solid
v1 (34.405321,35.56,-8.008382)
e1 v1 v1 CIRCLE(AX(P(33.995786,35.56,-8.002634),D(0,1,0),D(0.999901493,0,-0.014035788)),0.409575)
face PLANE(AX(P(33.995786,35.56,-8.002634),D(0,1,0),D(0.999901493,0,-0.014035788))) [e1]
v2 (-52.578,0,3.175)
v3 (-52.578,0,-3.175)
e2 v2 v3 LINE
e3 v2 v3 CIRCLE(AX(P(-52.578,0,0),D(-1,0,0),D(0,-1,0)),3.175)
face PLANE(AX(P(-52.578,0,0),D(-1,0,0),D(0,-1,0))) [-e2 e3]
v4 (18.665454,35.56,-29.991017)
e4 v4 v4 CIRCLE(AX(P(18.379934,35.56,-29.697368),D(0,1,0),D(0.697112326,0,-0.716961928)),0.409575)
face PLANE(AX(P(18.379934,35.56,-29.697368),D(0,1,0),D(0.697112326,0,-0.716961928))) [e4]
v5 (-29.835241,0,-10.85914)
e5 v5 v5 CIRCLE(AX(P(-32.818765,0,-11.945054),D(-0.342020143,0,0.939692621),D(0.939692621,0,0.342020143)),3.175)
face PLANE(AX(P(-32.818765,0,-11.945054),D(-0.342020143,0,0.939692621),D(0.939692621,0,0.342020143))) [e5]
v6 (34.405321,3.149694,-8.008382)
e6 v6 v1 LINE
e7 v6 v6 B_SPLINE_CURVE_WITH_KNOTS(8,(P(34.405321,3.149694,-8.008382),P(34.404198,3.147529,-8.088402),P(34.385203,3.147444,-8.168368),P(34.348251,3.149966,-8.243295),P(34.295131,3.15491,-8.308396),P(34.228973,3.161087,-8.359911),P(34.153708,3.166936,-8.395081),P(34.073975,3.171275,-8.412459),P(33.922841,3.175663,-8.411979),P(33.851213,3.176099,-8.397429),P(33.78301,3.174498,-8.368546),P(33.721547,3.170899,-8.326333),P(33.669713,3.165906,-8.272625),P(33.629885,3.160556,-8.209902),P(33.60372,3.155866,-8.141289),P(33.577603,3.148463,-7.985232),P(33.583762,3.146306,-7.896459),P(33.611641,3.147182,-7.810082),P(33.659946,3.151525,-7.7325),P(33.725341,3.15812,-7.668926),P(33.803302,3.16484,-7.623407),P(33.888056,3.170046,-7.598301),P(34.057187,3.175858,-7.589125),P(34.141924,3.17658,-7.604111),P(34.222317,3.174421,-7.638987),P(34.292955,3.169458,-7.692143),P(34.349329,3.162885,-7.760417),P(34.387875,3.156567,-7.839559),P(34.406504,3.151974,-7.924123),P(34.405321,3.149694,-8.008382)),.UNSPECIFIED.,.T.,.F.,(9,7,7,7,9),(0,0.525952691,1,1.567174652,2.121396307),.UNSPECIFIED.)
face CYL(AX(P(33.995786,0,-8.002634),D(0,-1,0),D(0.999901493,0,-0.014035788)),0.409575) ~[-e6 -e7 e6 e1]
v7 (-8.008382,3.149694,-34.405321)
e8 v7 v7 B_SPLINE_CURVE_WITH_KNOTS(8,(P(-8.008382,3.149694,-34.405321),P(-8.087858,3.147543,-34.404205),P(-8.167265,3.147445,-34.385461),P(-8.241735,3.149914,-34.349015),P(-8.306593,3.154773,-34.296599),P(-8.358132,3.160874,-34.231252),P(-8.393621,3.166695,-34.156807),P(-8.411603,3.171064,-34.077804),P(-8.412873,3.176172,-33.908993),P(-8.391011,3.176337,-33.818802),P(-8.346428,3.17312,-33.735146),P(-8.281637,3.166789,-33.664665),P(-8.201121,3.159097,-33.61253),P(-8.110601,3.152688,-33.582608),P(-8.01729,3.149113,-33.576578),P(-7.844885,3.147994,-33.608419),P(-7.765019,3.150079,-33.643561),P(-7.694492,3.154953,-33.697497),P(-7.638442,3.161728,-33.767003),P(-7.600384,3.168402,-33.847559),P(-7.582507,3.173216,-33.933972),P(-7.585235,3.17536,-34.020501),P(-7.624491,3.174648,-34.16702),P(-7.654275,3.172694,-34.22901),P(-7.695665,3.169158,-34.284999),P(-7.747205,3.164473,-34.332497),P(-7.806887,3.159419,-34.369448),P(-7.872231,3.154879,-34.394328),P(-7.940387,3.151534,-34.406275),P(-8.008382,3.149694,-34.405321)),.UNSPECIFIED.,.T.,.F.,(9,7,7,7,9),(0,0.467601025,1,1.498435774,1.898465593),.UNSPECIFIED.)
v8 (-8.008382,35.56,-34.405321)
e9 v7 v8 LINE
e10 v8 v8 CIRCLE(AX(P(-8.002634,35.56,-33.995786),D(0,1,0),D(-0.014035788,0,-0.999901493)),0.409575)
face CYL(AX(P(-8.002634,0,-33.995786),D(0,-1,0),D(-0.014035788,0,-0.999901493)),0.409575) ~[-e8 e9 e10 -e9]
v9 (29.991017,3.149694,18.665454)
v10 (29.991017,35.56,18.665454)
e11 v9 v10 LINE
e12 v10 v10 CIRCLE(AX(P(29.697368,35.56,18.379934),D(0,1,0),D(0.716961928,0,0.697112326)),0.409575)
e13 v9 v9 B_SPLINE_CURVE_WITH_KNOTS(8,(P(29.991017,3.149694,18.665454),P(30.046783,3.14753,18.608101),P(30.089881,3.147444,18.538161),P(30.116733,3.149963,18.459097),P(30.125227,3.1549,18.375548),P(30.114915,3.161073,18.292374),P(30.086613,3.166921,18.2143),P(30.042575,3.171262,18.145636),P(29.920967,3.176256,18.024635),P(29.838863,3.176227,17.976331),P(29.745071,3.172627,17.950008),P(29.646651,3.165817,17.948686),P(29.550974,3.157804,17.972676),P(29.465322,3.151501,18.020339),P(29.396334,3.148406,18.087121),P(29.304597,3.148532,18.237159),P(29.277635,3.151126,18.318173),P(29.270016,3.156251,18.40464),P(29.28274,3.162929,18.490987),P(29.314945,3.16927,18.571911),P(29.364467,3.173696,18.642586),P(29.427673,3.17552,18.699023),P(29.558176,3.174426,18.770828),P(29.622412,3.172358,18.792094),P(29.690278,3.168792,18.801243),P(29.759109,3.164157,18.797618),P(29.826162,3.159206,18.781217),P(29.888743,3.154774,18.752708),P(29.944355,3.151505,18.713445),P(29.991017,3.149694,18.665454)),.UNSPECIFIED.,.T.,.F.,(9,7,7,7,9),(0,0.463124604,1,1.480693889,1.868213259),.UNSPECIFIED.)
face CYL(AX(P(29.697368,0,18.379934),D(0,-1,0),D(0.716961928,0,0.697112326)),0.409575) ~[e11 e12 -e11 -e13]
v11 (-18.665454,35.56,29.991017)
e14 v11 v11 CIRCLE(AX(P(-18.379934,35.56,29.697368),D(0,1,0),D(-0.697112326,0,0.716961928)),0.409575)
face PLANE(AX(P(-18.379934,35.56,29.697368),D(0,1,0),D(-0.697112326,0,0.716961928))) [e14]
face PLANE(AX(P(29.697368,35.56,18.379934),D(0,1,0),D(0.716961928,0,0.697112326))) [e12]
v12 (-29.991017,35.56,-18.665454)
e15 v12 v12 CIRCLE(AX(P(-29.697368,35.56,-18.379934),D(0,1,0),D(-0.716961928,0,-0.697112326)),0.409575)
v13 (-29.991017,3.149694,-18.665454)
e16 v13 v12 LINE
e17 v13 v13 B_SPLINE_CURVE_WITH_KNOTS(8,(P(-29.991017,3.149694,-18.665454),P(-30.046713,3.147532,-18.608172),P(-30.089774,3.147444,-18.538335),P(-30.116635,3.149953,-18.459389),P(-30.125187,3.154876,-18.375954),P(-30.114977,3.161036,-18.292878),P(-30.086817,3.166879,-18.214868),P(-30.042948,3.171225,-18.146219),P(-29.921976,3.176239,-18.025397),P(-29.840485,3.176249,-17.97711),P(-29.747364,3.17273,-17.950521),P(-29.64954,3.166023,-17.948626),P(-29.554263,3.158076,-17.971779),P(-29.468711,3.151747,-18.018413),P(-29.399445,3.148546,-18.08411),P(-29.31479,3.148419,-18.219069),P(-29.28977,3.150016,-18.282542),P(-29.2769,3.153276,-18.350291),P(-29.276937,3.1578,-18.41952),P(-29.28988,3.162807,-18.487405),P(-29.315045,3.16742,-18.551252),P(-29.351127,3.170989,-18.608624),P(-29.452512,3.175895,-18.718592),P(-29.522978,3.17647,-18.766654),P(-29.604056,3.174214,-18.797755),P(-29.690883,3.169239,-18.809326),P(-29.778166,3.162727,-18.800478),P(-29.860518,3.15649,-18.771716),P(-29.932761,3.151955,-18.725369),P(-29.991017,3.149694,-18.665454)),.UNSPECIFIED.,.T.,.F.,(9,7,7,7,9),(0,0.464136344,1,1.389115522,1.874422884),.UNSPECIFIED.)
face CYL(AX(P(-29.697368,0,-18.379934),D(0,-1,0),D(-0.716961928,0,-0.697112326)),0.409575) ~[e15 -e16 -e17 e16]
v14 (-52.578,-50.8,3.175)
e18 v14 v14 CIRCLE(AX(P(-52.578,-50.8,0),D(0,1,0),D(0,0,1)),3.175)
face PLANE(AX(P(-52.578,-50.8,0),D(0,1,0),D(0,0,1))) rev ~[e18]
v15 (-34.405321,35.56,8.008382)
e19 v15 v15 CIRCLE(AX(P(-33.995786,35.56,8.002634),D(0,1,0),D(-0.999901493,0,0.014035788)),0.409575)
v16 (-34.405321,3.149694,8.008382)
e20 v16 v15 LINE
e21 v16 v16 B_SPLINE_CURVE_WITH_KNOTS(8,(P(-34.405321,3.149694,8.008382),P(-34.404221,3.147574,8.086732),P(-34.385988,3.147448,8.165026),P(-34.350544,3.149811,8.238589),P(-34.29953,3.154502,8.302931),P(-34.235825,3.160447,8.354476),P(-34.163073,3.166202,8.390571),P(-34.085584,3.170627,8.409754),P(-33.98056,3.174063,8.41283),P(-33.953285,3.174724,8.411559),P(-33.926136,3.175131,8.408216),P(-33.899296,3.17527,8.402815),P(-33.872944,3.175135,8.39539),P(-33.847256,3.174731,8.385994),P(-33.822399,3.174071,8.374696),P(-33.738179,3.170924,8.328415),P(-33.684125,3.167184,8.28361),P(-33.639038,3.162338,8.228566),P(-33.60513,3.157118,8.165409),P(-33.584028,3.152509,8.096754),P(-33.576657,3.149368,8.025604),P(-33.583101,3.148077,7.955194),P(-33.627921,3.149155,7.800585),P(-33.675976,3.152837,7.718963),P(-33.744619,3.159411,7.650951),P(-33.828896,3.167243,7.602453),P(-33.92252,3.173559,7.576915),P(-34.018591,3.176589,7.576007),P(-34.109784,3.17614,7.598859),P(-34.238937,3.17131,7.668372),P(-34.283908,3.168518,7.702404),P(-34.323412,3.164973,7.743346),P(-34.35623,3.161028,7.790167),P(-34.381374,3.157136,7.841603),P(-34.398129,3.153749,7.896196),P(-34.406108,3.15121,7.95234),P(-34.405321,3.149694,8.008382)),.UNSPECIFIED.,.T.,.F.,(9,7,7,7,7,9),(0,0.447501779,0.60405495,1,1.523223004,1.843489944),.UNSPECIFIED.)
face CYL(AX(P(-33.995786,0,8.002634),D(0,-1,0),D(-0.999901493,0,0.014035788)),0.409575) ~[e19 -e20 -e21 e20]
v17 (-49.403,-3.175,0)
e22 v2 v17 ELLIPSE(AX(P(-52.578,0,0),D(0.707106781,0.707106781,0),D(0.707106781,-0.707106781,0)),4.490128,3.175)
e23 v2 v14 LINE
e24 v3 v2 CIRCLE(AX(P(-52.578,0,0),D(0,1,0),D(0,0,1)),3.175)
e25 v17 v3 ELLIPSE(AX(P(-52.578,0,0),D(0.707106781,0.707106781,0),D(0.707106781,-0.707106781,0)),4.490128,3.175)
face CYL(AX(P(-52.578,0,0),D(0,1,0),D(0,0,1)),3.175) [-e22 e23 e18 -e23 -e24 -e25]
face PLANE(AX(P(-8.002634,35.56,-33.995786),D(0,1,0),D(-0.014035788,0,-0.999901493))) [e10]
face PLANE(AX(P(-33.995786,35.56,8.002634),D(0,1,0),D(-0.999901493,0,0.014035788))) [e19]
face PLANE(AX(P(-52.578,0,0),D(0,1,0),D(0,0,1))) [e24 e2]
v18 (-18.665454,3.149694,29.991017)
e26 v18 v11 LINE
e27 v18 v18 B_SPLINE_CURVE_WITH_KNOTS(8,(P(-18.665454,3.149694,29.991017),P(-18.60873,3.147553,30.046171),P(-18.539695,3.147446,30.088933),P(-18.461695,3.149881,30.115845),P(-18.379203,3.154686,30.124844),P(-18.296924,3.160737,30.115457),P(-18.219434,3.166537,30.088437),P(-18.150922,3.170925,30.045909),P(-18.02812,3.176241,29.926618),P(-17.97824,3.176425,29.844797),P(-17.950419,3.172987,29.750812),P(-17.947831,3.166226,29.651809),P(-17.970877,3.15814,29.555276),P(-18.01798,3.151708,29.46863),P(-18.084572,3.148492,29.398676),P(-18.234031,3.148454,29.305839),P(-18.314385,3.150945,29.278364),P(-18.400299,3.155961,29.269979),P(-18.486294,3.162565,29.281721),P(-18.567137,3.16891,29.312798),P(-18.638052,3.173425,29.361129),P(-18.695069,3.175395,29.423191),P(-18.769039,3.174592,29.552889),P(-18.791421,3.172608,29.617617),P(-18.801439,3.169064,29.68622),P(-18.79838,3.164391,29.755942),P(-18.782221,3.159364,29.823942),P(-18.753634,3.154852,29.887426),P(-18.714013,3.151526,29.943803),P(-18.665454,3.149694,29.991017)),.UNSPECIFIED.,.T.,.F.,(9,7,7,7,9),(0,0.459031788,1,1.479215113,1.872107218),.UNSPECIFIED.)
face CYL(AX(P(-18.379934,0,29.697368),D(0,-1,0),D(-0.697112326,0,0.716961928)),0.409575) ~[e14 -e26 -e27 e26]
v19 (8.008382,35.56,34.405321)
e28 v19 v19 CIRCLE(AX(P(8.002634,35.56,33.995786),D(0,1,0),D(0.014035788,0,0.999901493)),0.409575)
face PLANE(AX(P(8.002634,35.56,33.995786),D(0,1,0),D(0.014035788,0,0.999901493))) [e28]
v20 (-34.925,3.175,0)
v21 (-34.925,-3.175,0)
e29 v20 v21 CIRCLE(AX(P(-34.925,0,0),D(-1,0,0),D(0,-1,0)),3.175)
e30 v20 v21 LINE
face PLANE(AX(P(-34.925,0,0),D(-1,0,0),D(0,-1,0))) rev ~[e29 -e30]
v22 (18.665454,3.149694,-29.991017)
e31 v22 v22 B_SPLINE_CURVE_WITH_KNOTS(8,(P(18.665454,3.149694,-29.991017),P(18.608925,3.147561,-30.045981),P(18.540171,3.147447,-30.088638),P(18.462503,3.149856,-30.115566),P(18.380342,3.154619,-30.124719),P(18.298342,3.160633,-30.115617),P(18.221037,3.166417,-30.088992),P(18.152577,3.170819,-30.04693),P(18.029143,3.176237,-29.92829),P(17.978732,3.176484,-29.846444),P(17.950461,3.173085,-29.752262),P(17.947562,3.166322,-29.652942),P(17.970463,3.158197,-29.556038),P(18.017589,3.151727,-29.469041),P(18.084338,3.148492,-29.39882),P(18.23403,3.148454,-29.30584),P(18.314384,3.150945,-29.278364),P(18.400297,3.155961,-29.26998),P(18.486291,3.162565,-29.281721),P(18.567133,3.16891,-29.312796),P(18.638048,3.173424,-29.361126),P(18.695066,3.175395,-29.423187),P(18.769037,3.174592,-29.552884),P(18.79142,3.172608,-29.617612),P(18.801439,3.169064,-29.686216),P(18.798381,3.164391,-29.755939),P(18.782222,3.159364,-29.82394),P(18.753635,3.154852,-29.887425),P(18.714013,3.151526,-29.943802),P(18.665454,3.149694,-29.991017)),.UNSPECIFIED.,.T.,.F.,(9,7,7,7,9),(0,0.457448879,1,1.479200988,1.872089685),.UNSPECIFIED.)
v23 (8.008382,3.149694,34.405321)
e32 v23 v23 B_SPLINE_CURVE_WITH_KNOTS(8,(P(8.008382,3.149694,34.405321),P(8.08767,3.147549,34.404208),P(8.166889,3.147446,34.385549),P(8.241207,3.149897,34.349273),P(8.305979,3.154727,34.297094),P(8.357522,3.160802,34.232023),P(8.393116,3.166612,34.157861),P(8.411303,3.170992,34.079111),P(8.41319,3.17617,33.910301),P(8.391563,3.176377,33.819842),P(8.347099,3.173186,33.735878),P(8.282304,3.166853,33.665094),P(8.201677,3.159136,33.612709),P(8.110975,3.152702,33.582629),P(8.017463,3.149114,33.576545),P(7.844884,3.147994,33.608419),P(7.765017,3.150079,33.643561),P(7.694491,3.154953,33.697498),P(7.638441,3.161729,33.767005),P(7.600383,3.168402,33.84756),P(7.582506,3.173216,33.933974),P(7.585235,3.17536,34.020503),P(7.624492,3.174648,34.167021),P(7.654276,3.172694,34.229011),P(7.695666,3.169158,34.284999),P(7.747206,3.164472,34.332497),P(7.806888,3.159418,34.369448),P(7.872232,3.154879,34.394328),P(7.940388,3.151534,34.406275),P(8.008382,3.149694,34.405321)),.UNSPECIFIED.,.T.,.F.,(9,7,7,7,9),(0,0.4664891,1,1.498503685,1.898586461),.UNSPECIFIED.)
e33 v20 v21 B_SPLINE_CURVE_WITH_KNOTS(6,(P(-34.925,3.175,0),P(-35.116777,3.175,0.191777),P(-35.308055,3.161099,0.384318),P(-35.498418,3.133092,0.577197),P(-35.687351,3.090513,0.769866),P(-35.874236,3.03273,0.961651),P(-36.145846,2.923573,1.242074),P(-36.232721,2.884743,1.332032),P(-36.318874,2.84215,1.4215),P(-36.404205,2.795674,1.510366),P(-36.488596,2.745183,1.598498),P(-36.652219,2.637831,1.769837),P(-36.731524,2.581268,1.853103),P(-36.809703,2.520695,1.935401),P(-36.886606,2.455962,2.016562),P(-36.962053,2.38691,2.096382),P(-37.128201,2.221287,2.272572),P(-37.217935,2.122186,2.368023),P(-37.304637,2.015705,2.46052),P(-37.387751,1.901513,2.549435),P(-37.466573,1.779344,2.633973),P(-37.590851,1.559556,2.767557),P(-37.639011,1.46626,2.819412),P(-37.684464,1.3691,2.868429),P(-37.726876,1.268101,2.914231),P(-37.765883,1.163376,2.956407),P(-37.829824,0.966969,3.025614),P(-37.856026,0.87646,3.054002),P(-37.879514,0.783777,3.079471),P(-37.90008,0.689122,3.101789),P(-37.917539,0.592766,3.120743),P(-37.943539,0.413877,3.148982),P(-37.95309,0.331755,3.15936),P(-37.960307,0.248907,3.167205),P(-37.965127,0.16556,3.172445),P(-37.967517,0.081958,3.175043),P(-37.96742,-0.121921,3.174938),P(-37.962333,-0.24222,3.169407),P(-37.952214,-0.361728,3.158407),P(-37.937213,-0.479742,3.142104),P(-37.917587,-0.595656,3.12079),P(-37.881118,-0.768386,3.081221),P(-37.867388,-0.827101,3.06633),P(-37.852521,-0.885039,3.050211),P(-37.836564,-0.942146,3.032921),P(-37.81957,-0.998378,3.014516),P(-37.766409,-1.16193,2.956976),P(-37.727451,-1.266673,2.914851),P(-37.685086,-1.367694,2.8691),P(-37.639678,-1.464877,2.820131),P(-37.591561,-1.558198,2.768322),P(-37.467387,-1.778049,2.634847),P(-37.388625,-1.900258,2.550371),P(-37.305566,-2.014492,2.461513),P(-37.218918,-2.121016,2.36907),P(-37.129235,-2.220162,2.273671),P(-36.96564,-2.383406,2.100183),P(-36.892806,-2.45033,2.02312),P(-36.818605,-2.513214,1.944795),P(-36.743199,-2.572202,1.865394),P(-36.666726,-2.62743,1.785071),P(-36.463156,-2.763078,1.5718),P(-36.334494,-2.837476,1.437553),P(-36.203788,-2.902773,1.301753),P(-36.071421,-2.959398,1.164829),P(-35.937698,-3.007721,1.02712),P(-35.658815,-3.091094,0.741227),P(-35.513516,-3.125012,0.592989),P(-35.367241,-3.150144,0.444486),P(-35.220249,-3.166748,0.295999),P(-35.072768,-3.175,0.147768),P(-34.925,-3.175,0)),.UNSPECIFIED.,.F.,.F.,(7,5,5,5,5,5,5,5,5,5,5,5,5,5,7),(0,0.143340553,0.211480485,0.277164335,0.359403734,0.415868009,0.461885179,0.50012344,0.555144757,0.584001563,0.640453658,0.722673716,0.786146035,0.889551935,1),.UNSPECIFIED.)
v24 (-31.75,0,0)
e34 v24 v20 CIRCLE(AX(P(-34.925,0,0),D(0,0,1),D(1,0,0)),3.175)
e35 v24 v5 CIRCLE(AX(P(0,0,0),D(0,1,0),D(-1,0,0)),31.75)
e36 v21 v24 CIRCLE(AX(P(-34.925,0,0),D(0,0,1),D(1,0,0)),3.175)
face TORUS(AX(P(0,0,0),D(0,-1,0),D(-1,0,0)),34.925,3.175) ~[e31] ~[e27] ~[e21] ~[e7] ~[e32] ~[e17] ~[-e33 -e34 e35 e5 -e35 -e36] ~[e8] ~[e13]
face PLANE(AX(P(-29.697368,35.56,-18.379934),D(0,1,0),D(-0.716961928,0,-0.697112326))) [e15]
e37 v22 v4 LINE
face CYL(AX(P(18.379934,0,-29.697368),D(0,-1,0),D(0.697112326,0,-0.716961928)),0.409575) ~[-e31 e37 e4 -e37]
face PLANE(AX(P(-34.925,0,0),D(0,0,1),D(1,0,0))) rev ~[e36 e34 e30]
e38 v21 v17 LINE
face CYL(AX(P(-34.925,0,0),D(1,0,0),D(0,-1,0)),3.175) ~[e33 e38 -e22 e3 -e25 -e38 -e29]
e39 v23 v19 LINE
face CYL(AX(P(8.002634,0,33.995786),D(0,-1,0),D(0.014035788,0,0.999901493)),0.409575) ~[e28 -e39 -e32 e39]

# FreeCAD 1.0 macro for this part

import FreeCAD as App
import Part
import Sketcher

V = App.Vector
Q = App.Units.Quantity

doc = App.newDocument("Part")
body = doc.addObject("PartDesign::Body", "Body")

sketch1 = body.newObject("Sketcher::SketchObject", "Sketch")
sketch1.AttachmentSupport = (doc.getObject("XY_Plane"), [""])
sketch1.MapMode = "FlatFace"
sketch1.addGeometry(Part.Circle(V(-34.9, 0, 0), V(0, 0, 1), 3.2), False)
sketch1.addConstraint([
    Sketcher.Constraint("PointOnObject", 0, 3, -1),
    Sketcher.Constraint("Diameter", 0, Q("0.25 in")),
    Sketcher.Constraint("DistanceX", 0, 3, -1, 1, Q("1.375 in")),
])
revolution = body.newObject("PartDesign::Revolution", "Revolution")
revolution.Profile = sketch1
revolution.ReferenceAxis = (sketch1, ["V_Axis"])
revolution.Angle = 340

sketch2 = body.newObject("Sketcher::SketchObject", "Sketch001")
sketch2.AttachmentSupport = (doc.getObject("XZ_Plane"), [""])
sketch2.MapMode = "FlatFace"
sketch2.addGeometry(Part.Circle(V(-29.7, -18.38, 0), V(0, 0, 1), 0.41), False)
sketch2.addConstraint([
    Sketcher.Constraint("Diameter", 0, 0.81915),
    Sketcher.Constraint("DistanceX", 0, 3, -1, 1, 29.697368),
    Sketcher.Constraint("DistanceY", 0, 3, -1, 1, 18.379934),
])
pad1 = body.newObject("PartDesign::Pad", "Pad")
pad1.Profile = sketch2
pad1.Length = Q("1.4 in")
pad1.Reversed = True
doc.recompute()

polarpattern = body.newObject("PartDesign::PolarPattern", "PolarPattern")
polarpattern.Originals = [pad1]
polarpattern.Axis = (doc.getObject("Y_Axis"), [""])
polarpattern.Angle = 360
polarpattern.Occurrences = 8
body.Tip = polarpattern

sketch3 = body.newObject("Sketcher::SketchObject", "Sketch002")
sketch3.AttachmentSupport = (doc.getObject("YZ_Plane"), [""])
sketch3.MapMode = "FlatFace"
sketch3.AttachmentOffset = App.Placement(V(0, 0, -1.375 * 25.4), App.Rotation())
sketch3.addGeometry(Part.Circle(V(0, 0, 0), V(0, 0, 1), 3.2), False)
sketch3.addConstraint([
    Sketcher.Constraint("Coincident", 0, 3, -1, 1),
    Sketcher.Constraint("Diameter", 0, Q("0.25 in")),
])
pad2 = body.newObject("PartDesign::Pad", "Pad001")
pad2.Profile = sketch3
pad2.Length = Q("0.695 in")
pad2.Reversed = True

sketch4 = body.newObject("Sketcher::SketchObject", "Sketch003")
sketch4.AttachmentSupport = (doc.getObject("XZ_Plane"), [""])
sketch4.MapMode = "FlatFace"
sketch4.addGeometry(Part.Circle(V(-52.6, 0, 0), V(0, 0, 1), 3.2), False)
sketch4.addConstraint([
    Sketcher.Constraint("PointOnObject", 0, 3, -1),
    Sketcher.Constraint("Diameter", 0, Q("0.25 in")),
    Sketcher.Constraint("DistanceX", 0, 3, -1, 1, Q("2.07 in")),
])
pad3 = body.newObject("PartDesign::Pad", "Pad002")
pad3.Profile = sketch4
pad3.Length = Q("2 in")

doc.recompute()
